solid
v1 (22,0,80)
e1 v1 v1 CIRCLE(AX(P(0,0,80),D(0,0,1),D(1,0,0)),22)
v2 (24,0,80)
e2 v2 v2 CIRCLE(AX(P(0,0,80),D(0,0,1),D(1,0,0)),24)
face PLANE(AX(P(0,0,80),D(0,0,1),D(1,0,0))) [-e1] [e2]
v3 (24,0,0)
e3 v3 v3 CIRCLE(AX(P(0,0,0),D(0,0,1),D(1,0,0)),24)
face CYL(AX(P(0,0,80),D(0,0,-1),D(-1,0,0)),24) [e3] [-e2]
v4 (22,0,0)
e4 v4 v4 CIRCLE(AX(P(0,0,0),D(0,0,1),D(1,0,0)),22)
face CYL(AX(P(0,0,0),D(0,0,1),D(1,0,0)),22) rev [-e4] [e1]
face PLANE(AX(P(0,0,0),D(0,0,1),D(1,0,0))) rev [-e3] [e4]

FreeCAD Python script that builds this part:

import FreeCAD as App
import Part
import Sketcher

V = App.Vector
Q = App.Units.Quantity

doc = App.newDocument("Part")
params = doc.addObject("Spreadsheet::Sheet", "Params")
for row, (alias, value) in enumerate([
    ("sketch1_diameter", "48 mm"),
    ("pad1_length", "80 mm"),
    ("sketch2_diameter", "44 mm"),
    ("pocket1_length", "80 mm"),
], start=1):
    params.set(f"A{row}", alias)
    params.set(f"B{row}", "=" + value)
    params.setAlias(f"B{row}", alias)

body = doc.addObject("PartDesign::Body", "Body")

sketch1 = doc.addObject("Sketcher::SketchObject", "Sketch")
body.addObject(sketch1)
sketch1.AttachmentSupport = (doc.XY_Plane, [""])
sketch1.MapMode = "FlatFace"
sketch1.addGeometry(Part.Circle(V(0, 0, 0), V(0, 0, 1), 24), False)
sketch1.addConstraint(Sketcher.Constraint("Coincident", 0, 3, -1, 1))
sketch1.addConstraint(Sketcher.Constraint("Diameter", 0, Q("48 mm")))
sketch1.setExpression("Constraints[1]", "Params.sketch1_diameter")
pad1 = doc.addObject("PartDesign::Pad", "Pad")
body.addObject(pad1)
pad1.Profile = sketch1
pad1.setExpression("Length", "Params.pad1_length")

sketch2 = doc.addObject("Sketcher::SketchObject", "Sketch001")
body.addObject(sketch2)
sketch2.AttachmentSupport = (doc.XY_Plane, [""])
sketch2.MapMode = "FlatFace"
sketch2.AttachmentOffset = App.Placement(V(0, 0, 80), App.Rotation())
sketch2.addGeometry(Part.Circle(V(0, 0, 0), V(0, 0, 1), 22), False)
sketch2.addConstraint(Sketcher.Constraint("Coincident", 0, 3, -1, 1))
sketch2.addConstraint(Sketcher.Constraint("Diameter", 0, Q("44 mm")))
sketch2.setExpression("Constraints[1]", "Params.sketch2_diameter")
pocket1 = doc.addObject("PartDesign::Pocket", "Pocket")
body.addObject(pocket1)
pocket1.Profile = sketch2
pocket1.setExpression("Length", "Params.pocket1_length")

doc.recompute()
